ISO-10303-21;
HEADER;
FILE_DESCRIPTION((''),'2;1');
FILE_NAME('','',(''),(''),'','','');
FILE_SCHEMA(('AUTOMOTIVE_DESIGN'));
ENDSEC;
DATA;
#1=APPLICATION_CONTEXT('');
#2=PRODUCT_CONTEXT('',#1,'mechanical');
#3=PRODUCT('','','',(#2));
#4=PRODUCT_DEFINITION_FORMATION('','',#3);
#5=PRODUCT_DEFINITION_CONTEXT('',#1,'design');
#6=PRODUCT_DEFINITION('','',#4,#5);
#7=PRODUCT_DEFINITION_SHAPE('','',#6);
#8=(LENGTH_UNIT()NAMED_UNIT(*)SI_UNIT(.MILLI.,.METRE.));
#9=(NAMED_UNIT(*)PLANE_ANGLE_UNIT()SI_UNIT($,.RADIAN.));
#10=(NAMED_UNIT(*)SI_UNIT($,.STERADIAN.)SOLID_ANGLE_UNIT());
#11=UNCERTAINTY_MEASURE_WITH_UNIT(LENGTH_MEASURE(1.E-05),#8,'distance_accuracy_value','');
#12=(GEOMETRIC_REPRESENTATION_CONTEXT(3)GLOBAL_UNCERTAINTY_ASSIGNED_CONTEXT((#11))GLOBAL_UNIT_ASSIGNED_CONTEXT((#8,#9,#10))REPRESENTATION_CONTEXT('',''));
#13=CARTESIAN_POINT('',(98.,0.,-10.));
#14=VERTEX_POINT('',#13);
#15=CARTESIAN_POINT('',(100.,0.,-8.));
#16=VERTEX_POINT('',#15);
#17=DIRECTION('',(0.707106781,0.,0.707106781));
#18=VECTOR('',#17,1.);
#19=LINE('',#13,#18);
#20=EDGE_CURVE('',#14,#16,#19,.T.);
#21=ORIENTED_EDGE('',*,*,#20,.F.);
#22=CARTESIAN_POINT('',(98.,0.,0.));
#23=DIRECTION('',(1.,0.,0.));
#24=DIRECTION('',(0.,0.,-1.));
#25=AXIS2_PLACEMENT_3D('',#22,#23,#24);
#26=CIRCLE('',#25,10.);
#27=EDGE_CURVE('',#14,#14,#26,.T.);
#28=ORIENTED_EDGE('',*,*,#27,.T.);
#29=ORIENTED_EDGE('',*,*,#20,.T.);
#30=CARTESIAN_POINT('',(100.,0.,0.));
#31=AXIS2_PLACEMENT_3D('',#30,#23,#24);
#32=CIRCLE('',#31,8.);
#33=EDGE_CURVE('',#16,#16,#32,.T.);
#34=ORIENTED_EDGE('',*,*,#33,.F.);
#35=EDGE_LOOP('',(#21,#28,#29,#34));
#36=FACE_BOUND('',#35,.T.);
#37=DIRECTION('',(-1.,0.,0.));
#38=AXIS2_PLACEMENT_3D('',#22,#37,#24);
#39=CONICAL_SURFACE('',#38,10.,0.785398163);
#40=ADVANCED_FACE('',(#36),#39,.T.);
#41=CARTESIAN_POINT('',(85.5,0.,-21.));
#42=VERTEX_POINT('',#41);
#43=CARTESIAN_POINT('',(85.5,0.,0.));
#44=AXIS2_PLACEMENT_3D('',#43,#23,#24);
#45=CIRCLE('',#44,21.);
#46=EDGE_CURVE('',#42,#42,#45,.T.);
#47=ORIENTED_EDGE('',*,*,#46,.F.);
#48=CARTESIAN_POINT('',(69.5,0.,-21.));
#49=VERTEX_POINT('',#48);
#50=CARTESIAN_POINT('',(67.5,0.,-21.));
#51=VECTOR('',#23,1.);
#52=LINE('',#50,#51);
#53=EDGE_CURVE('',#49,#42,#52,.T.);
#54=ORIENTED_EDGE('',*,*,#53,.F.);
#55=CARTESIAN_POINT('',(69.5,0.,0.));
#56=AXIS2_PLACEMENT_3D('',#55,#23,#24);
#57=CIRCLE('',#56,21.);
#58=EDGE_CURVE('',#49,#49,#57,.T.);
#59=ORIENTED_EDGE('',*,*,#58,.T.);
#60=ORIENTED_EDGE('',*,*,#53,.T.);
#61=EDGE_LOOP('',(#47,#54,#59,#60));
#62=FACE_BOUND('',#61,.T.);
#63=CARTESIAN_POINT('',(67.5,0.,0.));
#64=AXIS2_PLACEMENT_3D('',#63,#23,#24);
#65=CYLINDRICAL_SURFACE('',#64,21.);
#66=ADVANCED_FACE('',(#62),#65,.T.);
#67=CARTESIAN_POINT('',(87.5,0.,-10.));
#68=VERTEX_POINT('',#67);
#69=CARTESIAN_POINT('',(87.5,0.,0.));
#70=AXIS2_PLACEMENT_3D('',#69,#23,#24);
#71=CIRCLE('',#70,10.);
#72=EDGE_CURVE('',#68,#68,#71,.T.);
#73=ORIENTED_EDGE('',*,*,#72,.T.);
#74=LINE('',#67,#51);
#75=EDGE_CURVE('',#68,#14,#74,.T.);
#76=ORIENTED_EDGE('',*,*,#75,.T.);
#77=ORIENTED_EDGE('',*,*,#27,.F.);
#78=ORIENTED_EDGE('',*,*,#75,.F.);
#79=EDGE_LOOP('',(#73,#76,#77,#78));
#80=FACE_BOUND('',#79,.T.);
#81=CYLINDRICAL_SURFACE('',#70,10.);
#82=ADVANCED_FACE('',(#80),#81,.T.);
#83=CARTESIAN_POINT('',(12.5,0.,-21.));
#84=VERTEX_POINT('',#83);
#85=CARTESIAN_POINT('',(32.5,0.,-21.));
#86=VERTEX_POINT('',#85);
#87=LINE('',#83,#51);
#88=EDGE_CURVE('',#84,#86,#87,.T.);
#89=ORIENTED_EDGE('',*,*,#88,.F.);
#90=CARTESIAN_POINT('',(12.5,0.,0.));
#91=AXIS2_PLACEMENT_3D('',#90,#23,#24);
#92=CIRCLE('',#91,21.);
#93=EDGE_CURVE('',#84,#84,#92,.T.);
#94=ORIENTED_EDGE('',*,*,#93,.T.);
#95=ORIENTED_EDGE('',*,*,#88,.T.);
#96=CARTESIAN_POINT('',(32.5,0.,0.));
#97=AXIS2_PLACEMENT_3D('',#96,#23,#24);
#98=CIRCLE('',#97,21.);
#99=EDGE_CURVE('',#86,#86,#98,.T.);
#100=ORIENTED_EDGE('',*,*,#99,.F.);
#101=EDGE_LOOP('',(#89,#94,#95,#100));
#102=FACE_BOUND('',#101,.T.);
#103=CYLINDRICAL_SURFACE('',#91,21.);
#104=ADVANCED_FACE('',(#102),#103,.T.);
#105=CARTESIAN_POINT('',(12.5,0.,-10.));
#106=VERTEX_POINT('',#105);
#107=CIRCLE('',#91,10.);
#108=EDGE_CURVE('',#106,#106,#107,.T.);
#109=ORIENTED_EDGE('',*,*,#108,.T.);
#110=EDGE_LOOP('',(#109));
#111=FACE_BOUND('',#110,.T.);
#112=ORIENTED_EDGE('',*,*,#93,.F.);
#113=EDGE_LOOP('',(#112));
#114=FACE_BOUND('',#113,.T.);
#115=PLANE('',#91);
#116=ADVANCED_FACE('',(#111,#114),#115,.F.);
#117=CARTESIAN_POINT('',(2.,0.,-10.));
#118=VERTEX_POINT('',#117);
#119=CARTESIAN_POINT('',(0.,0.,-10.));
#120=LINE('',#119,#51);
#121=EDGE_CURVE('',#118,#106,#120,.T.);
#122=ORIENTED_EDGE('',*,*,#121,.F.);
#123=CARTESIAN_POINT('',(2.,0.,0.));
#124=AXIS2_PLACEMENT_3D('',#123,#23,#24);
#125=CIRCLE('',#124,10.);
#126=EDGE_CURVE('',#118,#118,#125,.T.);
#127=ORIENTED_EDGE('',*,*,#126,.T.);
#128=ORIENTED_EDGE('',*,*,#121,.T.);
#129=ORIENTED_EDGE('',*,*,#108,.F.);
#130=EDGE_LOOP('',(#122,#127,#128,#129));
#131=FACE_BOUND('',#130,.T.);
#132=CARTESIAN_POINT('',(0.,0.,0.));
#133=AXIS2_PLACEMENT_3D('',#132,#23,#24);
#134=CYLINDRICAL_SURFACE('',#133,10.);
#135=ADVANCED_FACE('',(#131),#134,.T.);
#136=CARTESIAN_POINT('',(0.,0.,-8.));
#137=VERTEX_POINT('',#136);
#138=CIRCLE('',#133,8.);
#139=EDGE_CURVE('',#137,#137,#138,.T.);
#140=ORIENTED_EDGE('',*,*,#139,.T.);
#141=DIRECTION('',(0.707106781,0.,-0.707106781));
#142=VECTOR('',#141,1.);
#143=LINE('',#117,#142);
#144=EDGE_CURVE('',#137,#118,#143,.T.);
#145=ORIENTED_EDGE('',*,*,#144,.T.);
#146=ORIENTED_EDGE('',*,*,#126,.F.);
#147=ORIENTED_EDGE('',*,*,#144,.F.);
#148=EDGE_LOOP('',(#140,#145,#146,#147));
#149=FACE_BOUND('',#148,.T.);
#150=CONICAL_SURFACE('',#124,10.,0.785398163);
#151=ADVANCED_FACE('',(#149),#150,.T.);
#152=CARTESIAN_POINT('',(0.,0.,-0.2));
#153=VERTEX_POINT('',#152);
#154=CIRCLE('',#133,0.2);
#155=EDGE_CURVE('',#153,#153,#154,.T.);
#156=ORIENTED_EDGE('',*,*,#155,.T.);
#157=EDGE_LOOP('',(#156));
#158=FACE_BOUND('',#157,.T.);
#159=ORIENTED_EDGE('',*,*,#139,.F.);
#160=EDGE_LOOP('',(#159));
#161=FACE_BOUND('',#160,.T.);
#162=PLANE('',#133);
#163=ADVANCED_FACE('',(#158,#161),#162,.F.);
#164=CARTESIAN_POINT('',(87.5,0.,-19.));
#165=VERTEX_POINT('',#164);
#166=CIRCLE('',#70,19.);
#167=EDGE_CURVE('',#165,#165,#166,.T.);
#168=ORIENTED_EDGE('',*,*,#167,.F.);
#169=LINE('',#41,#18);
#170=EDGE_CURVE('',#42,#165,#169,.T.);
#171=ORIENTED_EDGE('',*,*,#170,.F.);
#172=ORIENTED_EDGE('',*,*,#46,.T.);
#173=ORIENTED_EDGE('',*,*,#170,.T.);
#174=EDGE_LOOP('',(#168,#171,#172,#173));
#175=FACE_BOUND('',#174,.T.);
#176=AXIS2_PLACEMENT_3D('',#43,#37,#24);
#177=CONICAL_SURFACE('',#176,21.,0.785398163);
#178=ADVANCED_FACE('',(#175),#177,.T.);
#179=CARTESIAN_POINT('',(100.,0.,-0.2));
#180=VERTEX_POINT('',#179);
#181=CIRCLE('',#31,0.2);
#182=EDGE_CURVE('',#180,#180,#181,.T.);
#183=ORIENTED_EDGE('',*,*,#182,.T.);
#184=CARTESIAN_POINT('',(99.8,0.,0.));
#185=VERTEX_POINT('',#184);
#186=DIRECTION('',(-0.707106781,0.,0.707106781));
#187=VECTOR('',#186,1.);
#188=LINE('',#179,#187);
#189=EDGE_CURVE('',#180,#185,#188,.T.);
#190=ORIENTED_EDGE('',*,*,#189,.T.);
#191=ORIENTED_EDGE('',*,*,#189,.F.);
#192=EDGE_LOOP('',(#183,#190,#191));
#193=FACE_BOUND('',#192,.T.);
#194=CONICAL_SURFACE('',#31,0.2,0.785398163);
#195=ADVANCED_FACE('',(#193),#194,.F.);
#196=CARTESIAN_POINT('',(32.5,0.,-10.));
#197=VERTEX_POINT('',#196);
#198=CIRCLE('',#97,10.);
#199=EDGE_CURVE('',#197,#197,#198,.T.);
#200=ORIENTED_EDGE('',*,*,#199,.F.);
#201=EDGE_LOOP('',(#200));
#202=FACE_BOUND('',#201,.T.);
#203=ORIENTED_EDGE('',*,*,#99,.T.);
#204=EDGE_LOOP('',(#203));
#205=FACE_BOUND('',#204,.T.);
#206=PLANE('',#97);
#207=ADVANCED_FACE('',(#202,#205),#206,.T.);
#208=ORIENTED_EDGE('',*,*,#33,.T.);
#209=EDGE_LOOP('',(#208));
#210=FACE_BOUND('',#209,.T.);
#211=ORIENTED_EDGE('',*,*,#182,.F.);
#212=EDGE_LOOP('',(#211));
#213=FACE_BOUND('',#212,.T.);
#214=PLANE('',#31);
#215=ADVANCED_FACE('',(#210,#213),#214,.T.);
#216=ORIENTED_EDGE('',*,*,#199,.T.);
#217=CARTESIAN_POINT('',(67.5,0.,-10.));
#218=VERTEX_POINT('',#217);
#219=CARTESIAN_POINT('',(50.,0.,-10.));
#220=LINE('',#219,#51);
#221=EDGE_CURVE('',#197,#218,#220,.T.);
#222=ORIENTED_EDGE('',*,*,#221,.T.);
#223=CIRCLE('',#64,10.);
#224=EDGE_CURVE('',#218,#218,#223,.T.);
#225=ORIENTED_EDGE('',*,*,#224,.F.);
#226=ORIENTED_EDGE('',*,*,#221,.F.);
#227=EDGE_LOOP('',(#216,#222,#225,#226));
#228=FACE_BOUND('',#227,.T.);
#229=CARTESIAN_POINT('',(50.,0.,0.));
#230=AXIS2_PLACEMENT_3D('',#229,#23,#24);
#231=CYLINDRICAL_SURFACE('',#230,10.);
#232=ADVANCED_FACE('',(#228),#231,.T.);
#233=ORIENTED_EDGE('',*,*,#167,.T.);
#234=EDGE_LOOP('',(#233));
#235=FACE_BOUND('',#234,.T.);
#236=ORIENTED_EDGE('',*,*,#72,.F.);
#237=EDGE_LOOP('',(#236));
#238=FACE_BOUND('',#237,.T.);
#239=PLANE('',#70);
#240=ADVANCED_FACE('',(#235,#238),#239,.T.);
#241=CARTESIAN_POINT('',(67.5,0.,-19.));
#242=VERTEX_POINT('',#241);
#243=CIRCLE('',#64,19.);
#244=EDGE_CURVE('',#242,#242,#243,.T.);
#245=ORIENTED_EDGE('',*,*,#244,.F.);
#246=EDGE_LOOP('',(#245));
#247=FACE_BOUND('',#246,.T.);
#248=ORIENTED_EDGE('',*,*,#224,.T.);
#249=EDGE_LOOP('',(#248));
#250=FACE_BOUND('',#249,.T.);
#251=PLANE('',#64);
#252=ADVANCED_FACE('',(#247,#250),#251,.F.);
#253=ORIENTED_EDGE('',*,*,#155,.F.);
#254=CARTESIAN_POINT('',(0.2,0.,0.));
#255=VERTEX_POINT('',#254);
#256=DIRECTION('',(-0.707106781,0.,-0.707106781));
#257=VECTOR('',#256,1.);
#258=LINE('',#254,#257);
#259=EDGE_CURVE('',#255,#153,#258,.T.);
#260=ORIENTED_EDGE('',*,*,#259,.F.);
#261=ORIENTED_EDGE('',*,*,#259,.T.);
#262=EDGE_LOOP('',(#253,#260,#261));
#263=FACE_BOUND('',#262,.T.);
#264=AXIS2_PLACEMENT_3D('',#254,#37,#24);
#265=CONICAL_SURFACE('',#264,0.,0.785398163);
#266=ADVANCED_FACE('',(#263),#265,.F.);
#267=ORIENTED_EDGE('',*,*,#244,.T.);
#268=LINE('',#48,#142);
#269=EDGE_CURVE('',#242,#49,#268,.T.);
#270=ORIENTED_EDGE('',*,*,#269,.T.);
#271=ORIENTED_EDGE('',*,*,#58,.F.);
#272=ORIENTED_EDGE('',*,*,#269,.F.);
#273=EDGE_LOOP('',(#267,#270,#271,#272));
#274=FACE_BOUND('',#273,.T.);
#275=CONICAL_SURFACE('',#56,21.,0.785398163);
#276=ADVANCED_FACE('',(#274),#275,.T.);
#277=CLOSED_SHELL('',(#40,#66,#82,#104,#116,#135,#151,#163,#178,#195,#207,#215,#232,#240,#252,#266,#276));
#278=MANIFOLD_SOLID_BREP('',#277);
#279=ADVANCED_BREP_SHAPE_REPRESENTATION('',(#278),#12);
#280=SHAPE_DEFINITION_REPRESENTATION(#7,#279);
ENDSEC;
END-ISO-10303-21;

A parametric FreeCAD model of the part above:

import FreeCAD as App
import Part
import Sketcher

V = App.Vector
Q = App.Units.Quantity


def edges_at(feature, points):
    """Names of the edges that pass closest to the given points."""
    edges = feature.Shape.Edges
    near = lambda p: min(range(len(edges)), key=lambda i: edges[i].distToShape(Part.Vertex(*p))[0])
    return sorted({f"Edge{near(p) + 1}" for p in points})

doc = App.newDocument("Part")
body = doc.addObject("PartDesign::Body", "Body")

# Sketch on XZ plane
sketch1 = doc.addObject("Sketcher::SketchObject", "Sketch")
body.addObject(sketch1)
sketch1.AttachmentSupport = (doc.XZ_Plane, [""])
sketch1.MapMode = "FlatFace"
sketch1.addGeometry([
    Part.LineSegment(V(12.5, -10, 0), V(12.5, -21, 0)),  # 0
    Part.LineSegment(V(12.5, -21, 0), V(32.5, -21, 0)),  # 1
    Part.LineSegment(V(32.5, -21, 0), V(32.5, -10, 0)),  # 2
    Part.LineSegment(V(32.5, -10, 0), V(67.5, -10, 0)),  # 3
    Part.LineSegment(V(67.5, -10, 0), V(67.5, -21, 0)),  # 4
    Part.LineSegment(V(67.5, -21, 0), V(87.5, -21, 0)),  # 5
    Part.LineSegment(V(87.5, -21, 0), V(87.5, -10, 0)),  # 6
    Part.LineSegment(V(87.5, -10, 0), V(100, -10, 0)),  # 7
    Part.LineSegment(V(100, -10, 0), V(100, -0.2, 0)),  # 8
    Part.LineSegment(V(100, -0.2, 0), V(99.8, 0, 0)),  # 9
    Part.LineSegment(V(99.8, 0, 0), V(0.2, 0, 0)),  # 10
    Part.LineSegment(V(0.2, 0, 0), V(0, -0.2, 0)),  # 11
    Part.LineSegment(V(0, -0.2, 0), V(0, -10, 0)),  # 12
    Part.LineSegment(V(0, -10, 0), V(12.5, -10, 0)),  # 13
], False)
sketch1.addConstraint([
    Sketcher.Constraint("Coincident", 0, 2, 1, 1),
    Sketcher.Constraint("Coincident", 1, 2, 2, 1),
    Sketcher.Constraint("Coincident", 2, 2, 3, 1),
    Sketcher.Constraint("Coincident", 3, 2, 4, 1),
    Sketcher.Constraint("Coincident", 4, 2, 5, 1),
    Sketcher.Constraint("Coincident", 5, 2, 6, 1),
    Sketcher.Constraint("Coincident", 6, 2, 7, 1),
    Sketcher.Constraint("Coincident", 7, 2, 8, 1),
    Sketcher.Constraint("Coincident", 8, 2, 9, 1),
    Sketcher.Constraint("Coincident", 9, 2, 10, 1),
    Sketcher.Constraint("Coincident", 10, 2, 11, 1),
    Sketcher.Constraint("Coincident", 11, 2, 12, 1),
    Sketcher.Constraint("Coincident", 12, 2, 13, 1),
    Sketcher.Constraint("Coincident", 13, 2, 0, 1),
    Sketcher.Constraint("Vertical", 0),
    Sketcher.Constraint("Horizontal", 1),
    Sketcher.Constraint("Vertical", 2),
    Sketcher.Constraint("Horizontal", 3),
    Sketcher.Constraint("Vertical", 4),
    Sketcher.Constraint("Horizontal", 5),
    Sketcher.Constraint("Vertical", 6),
    Sketcher.Constraint("Horizontal", 7),
    Sketcher.Constraint("Vertical", 8),
    Sketcher.Constraint("Horizontal", 10),
    Sketcher.Constraint("Vertical", 12),
    Sketcher.Constraint("Horizontal", 13),
    Sketcher.Constraint("PointOnObject", 9, 2, -1),
    Sketcher.Constraint("PointOnObject", 11, 2, -2),
    Sketcher.Constraint("Perpendicular", 9, 11),
    Sketcher.Constraint("Horizontal", 1, 2, 4, 2),
    Sketcher.Constraint("Horizontal", 3, 2, 6, 2),
    Sketcher.Constraint("Horizontal", 8, 2, 11, 2),
    Sketcher.Constraint("Horizontal", 7, 2, 12, 2),
    Sketcher.Constraint("Equal", 1, 5),
    Sketcher.Constraint("Equal", 7, 13),
    Sketcher.Constraint("Equal", 9, 11),
    Sketcher.Constraint("DistanceX", 1, 1, 1, 2, Q("20 mm")),
    Sketcher.Constraint("DistanceX", 3, 1, 3, 2, Q("35 mm")),
    Sketcher.Constraint("DistanceY", 0, 2, 0, 1, Q("11 mm")),
    Sketcher.Constraint("DistanceX", 7, 1, 7, 2, Q("12.5 mm")),
    Sketcher.Constraint("DistanceX", 10, 2, 10, 1, Q("99.6 mm")),
    Sketcher.Constraint("DistanceY", 8, 1, 8, 2, Q("9.8 mm")),
])
revolution = doc.addObject("PartDesign::Revolution", "Revolution")
body.addObject(revolution)
revolution.Profile = sketch1
revolution.ReferenceAxis = (sketch1, ["H_Axis"])
revolution.Angle = 360
doc.recompute()

chamfer = doc.addObject("PartDesign::Chamfer", "Chamfer")
body.addObject(chamfer)
chamfer.Base = (revolution, edges_at(revolution, [
    (67.5, 0, 21),
    (87.5, 0, 21),
    (100, 0, 10),
    (0, 0, 10),
]))
chamfer.Size = 2

doc.recompute()
